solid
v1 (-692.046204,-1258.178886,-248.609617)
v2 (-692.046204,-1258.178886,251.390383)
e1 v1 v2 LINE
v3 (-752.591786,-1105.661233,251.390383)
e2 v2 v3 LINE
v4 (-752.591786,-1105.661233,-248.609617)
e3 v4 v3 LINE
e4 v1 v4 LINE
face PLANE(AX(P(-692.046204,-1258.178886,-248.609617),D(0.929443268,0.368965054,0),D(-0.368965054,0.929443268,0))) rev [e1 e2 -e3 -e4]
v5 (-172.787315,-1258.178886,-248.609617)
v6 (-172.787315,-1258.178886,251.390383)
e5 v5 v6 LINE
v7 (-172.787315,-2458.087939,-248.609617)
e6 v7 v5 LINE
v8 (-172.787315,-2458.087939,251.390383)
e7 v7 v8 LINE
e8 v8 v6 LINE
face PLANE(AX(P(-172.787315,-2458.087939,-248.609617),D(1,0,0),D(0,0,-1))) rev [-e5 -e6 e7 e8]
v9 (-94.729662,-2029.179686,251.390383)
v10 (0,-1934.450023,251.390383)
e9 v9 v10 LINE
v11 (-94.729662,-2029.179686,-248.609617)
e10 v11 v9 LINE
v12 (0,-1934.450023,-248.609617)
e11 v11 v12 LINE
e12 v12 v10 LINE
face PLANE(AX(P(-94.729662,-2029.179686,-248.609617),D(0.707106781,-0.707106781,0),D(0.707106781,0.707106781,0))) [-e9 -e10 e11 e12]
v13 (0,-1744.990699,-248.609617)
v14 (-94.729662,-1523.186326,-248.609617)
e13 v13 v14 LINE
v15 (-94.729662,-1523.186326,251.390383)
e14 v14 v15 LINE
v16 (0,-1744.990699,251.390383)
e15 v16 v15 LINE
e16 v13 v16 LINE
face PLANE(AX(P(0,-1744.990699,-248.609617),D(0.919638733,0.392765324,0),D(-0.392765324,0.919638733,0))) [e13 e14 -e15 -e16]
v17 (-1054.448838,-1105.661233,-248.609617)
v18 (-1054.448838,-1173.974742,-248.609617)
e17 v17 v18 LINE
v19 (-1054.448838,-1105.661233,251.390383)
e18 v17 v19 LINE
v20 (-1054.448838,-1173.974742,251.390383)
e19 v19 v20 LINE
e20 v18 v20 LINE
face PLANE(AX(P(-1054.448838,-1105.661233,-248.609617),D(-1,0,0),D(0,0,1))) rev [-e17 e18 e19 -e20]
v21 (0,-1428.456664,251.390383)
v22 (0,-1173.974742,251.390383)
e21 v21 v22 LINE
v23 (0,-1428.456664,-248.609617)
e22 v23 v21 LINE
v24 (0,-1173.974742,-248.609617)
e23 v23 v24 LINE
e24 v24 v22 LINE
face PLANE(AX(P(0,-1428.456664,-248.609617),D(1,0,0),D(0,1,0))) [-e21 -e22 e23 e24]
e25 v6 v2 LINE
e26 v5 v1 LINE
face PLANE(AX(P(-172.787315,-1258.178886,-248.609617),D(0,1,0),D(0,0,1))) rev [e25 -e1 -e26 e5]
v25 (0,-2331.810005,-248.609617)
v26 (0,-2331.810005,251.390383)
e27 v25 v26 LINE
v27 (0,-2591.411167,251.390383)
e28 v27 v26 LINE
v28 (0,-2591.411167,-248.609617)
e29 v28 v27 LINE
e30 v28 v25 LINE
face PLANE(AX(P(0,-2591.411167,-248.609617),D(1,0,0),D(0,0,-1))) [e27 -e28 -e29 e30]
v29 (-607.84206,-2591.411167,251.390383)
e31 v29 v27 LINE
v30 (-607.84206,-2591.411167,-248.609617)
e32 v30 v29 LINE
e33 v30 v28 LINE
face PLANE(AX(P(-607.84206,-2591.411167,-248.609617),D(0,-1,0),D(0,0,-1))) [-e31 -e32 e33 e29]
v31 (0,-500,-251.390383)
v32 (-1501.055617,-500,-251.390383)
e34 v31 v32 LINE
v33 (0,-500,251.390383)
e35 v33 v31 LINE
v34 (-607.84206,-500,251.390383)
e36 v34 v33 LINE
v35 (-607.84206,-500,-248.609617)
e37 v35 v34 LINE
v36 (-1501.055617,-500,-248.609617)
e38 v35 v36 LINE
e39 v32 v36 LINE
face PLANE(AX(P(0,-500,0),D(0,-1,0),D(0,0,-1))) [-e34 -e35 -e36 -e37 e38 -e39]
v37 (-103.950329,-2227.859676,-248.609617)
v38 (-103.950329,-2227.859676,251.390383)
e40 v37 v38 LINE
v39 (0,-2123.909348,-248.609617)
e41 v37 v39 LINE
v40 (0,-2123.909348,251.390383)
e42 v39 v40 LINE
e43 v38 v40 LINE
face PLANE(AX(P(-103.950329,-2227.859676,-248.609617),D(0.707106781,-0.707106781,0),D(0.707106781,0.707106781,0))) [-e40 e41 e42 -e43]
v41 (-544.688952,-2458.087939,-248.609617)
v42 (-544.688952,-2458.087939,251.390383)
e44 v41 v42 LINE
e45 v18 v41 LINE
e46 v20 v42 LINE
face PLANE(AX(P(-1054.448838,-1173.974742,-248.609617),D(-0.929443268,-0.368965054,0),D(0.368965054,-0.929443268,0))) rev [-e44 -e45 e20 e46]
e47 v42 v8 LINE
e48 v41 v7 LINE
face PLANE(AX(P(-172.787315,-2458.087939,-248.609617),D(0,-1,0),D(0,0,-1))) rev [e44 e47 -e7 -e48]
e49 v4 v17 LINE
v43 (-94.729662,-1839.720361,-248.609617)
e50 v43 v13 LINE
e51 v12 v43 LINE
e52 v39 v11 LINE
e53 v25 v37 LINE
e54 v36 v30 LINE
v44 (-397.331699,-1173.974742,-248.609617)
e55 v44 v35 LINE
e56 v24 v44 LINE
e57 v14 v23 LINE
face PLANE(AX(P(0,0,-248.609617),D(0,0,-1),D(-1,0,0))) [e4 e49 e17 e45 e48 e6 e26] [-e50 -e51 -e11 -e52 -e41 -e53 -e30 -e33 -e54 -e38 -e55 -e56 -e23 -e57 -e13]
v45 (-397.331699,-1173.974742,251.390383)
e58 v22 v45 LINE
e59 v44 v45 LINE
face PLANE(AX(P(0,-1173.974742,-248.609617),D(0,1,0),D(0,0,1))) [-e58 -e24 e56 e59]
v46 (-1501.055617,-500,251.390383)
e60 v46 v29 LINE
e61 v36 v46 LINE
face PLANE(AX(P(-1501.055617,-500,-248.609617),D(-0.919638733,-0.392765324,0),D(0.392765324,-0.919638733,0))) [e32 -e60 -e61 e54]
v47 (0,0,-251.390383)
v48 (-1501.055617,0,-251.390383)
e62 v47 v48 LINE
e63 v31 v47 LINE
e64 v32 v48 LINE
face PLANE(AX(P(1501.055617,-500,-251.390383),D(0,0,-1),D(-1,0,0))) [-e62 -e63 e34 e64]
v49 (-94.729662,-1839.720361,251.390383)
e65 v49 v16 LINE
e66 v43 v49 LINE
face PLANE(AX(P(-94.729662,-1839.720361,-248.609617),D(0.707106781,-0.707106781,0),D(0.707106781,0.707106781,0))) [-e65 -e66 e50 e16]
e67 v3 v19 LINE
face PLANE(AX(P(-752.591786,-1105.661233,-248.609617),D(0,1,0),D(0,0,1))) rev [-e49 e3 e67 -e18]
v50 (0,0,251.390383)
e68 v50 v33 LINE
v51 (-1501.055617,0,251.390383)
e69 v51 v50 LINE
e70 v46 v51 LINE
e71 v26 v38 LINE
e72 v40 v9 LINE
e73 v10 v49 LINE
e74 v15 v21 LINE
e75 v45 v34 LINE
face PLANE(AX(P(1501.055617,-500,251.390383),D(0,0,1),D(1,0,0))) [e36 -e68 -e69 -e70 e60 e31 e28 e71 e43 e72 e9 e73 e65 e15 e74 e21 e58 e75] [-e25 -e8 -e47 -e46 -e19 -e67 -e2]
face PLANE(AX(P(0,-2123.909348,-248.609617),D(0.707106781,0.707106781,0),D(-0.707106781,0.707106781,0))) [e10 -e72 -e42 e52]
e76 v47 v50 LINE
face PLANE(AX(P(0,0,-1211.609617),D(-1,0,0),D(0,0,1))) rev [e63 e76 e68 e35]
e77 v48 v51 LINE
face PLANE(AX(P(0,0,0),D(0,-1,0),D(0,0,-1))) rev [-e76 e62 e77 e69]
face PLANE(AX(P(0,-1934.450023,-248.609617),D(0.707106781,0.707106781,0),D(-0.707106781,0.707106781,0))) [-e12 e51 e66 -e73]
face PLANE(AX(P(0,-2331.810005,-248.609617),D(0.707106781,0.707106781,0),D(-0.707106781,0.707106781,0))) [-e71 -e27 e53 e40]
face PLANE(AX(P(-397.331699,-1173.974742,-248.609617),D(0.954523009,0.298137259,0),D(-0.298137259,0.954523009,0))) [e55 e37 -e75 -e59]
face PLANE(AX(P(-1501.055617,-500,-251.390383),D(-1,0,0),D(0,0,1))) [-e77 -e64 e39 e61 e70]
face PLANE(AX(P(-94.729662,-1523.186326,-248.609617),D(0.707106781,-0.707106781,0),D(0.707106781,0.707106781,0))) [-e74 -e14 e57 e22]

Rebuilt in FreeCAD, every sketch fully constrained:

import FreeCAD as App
import Part
import Sketcher
Q = App.Units.Quantity


def add_polygon(sketch, points):
    """Adds a closed chain of lines whose ends are joined by coincident constraints."""
    first, n = sketch.GeometryCount, len(points)
    for a, b in zip(points, points[1:] + points[:1]):
        sketch.addGeometry(Part.LineSegment(App.Vector(*a, 0), App.Vector(*b, 0)), False)
    for i in range(n):
        sketch.addConstraint(Sketcher.Constraint("Coincident", first + i, 2, first + (i + 1) % n, 1))

doc = App.newDocument("Part")
params = doc.addObject("Spreadsheet::Sheet", "Params")
for row, (alias, value) in enumerate([
    ("pad1_length", "500 mm"),
    ("pad2_length", "500 mm"),
    ("pocket1_length", "1463 mm"),
], start=1):
    params.set(f"A{row}", alias)
    params.set(f"B{row}", "=" + value)
    params.setAlias(f"B{row}", alias)

body = doc.addObject("PartDesign::Body", "Body")

# Sketch on XZ plane
sketch1 = doc.addObject("Sketcher::SketchObject", "Sketch")
body.addObject(sketch1)
sketch1.AttachmentSupport = (doc.XZ_Plane, [""])
sketch1.MapMode = "FlatFace"
add_polygon(sketch1, [(-1501, -251), (-1501, 251), (1501, 251), (1501, -251)])  # lines 0-3
sketch1.addConstraint([
    Sketcher.Constraint("Vertical", 0),
    Sketcher.Constraint("Horizontal", 1),
    Sketcher.Constraint("Vertical", 2),
    Sketcher.Constraint("Horizontal", 3),
    Sketcher.Constraint("Symmetric", 0, 2, 2, 2, -1, 1),
    Sketcher.Constraint("DistanceX", 1, 1, 1, 2, Q("3002.111235 mm")),
    Sketcher.Constraint("DistanceY", 0, 1, 0, 2, Q("502.780765 mm")),
])
pad1 = doc.addObject("PartDesign::Pad", "Pad")
body.addObject(pad1)
pad1.Profile = sketch1
pad1.setExpression("Length", "Params.pad1_length")

# Sketch on XY plane
sketch2 = doc.addObject("Sketcher::SketchObject", "Sketch001")
body.addObject(sketch2)
sketch2.AttachmentSupport = (doc.XY_Plane, [""])
sketch2.MapMode = "FlatFace"
sketch2.AttachmentOffset = App.Placement(App.Vector(0, 0, 251.390383), App.Rotation())
add_polygon(sketch2, [(-1501, -500), (-608, -2591), (0, -2591), (0, -2332), (-104, -2228), (0, -2124), (-95, -2029), (0, -1934), (-95, -1840), (0, -1745), (-95, -1523), (0, -1428), (0, -1174), (-397, -1174), (-608, -500)])  # lines 0-14
add_polygon(sketch2, [(-545, -2458), (-1054, -1174), (-1054, -1106), (-753, -1106), (-692, -1258), (-173, -1258), (-173, -2458)])  # lines 15-21
sketch2.addConstraint([
    Sketcher.Constraint("Horizontal", 1),
    Sketcher.Constraint("Vertical", 2),
    Sketcher.Constraint("Vertical", 11),
    Sketcher.Constraint("Horizontal", 12),
    Sketcher.Constraint("Horizontal", 14),
    Sketcher.Constraint("Vertical", 16),
    Sketcher.Constraint("Horizontal", 17),
    Sketcher.Constraint("Horizontal", 19),
    Sketcher.Constraint("Vertical", 20),
    Sketcher.Constraint("Horizontal", 21),
    Sketcher.Constraint("PointOnObject", 1, 2, -2),
    Sketcher.Constraint("PointOnObject", 4, 2, -2),
    Sketcher.Constraint("PointOnObject", 6, 2, -2),
    Sketcher.Constraint("PointOnObject", 8, 2, -2),
    Sketcher.Constraint("PointOnObject", 10, 2, -2),
    Sketcher.Constraint("Perpendicular", 3, 4),
    Sketcher.Constraint("Perpendicular", 4, 5),
    Sketcher.Constraint("Perpendicular", 5, 6),
    Sketcher.Constraint("Perpendicular", 6, 7),
    Sketcher.Constraint("Perpendicular", 7, 8),
    Sketcher.Constraint("Parallel", 0, 9),
    Sketcher.Constraint("Parallel", 8, 10),
    Sketcher.Constraint("Parallel", 15, 18),
    Sketcher.Constraint("Horizontal", 12, 2, 15, 2),
    Sketcher.Constraint("Vertical", 5, 2, 7, 2),
    Sketcher.Constraint("Vertical", 7, 2, 9, 2),
    Sketcher.Constraint("Vertical", 0, 2, 13, 2),
    Sketcher.Constraint("Equal", 3, 4),
    Sketcher.Constraint("DistanceY", 13, 2, -1, 1, Q("500 mm")),
    Sketcher.Constraint("DistanceX", 12, 2, 12, 1, Q("397.331699 mm")),
    Sketcher.Constraint("DistanceX", 1, 1, 1, 2, Q("607.84206 mm")),
    Sketcher.Constraint("DistanceX", 19, 1, 19, 2, Q("519.258888 mm")),
    Sketcher.Constraint("DistanceY", 2, 1, 2, 2, Q("259.601162 mm")),
    Sketcher.Constraint("DistanceY", 16, 1, 16, 2, Q("68.313509 mm")),
    Sketcher.Constraint("DistanceY", 8, 2, -1, 1, Q("1744.990699 mm")),
    Sketcher.Constraint("Distance", 0, Q("2274.166029 mm")),
    Sketcher.Constraint("Distance", 9, Q("241.186419 mm")),
    Sketcher.Constraint("Distance", 13, Q("706.085381 mm")),
    Sketcher.Constraint("Distance", 15, Q("1381.593951 mm")),
    Sketcher.Constraint("Distance", 18, Q("164.09571 mm")),
    Sketcher.Constraint("DistanceX", 14, 2, 14, 1, Q("893.213558 mm")),
    Sketcher.Constraint("DistanceX", 17, 1, 17, 2, Q("301.857052 mm")),
    Sketcher.Constraint("DistanceX", 21, 2, 21, 1, Q("371.901636 mm")),
    Sketcher.Constraint("DistanceX", 15, 2, -1, 1, Q("1054.448838 mm")),
])
pad2 = doc.addObject("PartDesign::Pad", "Pad001")
body.addObject(pad2)
pad2.Profile = sketch2
pad2.setExpression("Length", "Params.pad2_length")
pad2.Reversed = True

# Sketch on XY plane
sketch3 = doc.addObject("Sketcher::SketchObject", "Sketch002")
body.addObject(sketch3)
sketch3.AttachmentSupport = (doc.XY_Plane, [""])
sketch3.MapMode = "FlatFace"
sketch3.AttachmentOffset = App.Placement(App.Vector(0, 0, 251.390383), App.Rotation())
add_polygon(sketch3, [(0, 0), (0, -2751), (2223, -2751), (2223, 0)])  # lines 0-3
sketch3.addConstraint([
    Sketcher.Constraint("Vertical", 0),
    Sketcher.Constraint("Horizontal", 1),
    Sketcher.Constraint("Vertical", 2),
    Sketcher.Constraint("Horizontal", 3),
    Sketcher.Constraint("Coincident", 3, 2, -1, 1),
    Sketcher.Constraint("DistanceX", 1, 1, 1, 2, Q("2223.446104 mm")),
    Sketcher.Constraint("DistanceY", 0, 2, 0, 1, Q("2751.374813 mm")),
])
pocket1 = doc.addObject("PartDesign::Pocket", "Pocket")
body.addObject(pocket1)
pocket1.Profile = sketch3
pocket1.setExpression("Length", "Params.pocket1_length")

doc.recompute()
